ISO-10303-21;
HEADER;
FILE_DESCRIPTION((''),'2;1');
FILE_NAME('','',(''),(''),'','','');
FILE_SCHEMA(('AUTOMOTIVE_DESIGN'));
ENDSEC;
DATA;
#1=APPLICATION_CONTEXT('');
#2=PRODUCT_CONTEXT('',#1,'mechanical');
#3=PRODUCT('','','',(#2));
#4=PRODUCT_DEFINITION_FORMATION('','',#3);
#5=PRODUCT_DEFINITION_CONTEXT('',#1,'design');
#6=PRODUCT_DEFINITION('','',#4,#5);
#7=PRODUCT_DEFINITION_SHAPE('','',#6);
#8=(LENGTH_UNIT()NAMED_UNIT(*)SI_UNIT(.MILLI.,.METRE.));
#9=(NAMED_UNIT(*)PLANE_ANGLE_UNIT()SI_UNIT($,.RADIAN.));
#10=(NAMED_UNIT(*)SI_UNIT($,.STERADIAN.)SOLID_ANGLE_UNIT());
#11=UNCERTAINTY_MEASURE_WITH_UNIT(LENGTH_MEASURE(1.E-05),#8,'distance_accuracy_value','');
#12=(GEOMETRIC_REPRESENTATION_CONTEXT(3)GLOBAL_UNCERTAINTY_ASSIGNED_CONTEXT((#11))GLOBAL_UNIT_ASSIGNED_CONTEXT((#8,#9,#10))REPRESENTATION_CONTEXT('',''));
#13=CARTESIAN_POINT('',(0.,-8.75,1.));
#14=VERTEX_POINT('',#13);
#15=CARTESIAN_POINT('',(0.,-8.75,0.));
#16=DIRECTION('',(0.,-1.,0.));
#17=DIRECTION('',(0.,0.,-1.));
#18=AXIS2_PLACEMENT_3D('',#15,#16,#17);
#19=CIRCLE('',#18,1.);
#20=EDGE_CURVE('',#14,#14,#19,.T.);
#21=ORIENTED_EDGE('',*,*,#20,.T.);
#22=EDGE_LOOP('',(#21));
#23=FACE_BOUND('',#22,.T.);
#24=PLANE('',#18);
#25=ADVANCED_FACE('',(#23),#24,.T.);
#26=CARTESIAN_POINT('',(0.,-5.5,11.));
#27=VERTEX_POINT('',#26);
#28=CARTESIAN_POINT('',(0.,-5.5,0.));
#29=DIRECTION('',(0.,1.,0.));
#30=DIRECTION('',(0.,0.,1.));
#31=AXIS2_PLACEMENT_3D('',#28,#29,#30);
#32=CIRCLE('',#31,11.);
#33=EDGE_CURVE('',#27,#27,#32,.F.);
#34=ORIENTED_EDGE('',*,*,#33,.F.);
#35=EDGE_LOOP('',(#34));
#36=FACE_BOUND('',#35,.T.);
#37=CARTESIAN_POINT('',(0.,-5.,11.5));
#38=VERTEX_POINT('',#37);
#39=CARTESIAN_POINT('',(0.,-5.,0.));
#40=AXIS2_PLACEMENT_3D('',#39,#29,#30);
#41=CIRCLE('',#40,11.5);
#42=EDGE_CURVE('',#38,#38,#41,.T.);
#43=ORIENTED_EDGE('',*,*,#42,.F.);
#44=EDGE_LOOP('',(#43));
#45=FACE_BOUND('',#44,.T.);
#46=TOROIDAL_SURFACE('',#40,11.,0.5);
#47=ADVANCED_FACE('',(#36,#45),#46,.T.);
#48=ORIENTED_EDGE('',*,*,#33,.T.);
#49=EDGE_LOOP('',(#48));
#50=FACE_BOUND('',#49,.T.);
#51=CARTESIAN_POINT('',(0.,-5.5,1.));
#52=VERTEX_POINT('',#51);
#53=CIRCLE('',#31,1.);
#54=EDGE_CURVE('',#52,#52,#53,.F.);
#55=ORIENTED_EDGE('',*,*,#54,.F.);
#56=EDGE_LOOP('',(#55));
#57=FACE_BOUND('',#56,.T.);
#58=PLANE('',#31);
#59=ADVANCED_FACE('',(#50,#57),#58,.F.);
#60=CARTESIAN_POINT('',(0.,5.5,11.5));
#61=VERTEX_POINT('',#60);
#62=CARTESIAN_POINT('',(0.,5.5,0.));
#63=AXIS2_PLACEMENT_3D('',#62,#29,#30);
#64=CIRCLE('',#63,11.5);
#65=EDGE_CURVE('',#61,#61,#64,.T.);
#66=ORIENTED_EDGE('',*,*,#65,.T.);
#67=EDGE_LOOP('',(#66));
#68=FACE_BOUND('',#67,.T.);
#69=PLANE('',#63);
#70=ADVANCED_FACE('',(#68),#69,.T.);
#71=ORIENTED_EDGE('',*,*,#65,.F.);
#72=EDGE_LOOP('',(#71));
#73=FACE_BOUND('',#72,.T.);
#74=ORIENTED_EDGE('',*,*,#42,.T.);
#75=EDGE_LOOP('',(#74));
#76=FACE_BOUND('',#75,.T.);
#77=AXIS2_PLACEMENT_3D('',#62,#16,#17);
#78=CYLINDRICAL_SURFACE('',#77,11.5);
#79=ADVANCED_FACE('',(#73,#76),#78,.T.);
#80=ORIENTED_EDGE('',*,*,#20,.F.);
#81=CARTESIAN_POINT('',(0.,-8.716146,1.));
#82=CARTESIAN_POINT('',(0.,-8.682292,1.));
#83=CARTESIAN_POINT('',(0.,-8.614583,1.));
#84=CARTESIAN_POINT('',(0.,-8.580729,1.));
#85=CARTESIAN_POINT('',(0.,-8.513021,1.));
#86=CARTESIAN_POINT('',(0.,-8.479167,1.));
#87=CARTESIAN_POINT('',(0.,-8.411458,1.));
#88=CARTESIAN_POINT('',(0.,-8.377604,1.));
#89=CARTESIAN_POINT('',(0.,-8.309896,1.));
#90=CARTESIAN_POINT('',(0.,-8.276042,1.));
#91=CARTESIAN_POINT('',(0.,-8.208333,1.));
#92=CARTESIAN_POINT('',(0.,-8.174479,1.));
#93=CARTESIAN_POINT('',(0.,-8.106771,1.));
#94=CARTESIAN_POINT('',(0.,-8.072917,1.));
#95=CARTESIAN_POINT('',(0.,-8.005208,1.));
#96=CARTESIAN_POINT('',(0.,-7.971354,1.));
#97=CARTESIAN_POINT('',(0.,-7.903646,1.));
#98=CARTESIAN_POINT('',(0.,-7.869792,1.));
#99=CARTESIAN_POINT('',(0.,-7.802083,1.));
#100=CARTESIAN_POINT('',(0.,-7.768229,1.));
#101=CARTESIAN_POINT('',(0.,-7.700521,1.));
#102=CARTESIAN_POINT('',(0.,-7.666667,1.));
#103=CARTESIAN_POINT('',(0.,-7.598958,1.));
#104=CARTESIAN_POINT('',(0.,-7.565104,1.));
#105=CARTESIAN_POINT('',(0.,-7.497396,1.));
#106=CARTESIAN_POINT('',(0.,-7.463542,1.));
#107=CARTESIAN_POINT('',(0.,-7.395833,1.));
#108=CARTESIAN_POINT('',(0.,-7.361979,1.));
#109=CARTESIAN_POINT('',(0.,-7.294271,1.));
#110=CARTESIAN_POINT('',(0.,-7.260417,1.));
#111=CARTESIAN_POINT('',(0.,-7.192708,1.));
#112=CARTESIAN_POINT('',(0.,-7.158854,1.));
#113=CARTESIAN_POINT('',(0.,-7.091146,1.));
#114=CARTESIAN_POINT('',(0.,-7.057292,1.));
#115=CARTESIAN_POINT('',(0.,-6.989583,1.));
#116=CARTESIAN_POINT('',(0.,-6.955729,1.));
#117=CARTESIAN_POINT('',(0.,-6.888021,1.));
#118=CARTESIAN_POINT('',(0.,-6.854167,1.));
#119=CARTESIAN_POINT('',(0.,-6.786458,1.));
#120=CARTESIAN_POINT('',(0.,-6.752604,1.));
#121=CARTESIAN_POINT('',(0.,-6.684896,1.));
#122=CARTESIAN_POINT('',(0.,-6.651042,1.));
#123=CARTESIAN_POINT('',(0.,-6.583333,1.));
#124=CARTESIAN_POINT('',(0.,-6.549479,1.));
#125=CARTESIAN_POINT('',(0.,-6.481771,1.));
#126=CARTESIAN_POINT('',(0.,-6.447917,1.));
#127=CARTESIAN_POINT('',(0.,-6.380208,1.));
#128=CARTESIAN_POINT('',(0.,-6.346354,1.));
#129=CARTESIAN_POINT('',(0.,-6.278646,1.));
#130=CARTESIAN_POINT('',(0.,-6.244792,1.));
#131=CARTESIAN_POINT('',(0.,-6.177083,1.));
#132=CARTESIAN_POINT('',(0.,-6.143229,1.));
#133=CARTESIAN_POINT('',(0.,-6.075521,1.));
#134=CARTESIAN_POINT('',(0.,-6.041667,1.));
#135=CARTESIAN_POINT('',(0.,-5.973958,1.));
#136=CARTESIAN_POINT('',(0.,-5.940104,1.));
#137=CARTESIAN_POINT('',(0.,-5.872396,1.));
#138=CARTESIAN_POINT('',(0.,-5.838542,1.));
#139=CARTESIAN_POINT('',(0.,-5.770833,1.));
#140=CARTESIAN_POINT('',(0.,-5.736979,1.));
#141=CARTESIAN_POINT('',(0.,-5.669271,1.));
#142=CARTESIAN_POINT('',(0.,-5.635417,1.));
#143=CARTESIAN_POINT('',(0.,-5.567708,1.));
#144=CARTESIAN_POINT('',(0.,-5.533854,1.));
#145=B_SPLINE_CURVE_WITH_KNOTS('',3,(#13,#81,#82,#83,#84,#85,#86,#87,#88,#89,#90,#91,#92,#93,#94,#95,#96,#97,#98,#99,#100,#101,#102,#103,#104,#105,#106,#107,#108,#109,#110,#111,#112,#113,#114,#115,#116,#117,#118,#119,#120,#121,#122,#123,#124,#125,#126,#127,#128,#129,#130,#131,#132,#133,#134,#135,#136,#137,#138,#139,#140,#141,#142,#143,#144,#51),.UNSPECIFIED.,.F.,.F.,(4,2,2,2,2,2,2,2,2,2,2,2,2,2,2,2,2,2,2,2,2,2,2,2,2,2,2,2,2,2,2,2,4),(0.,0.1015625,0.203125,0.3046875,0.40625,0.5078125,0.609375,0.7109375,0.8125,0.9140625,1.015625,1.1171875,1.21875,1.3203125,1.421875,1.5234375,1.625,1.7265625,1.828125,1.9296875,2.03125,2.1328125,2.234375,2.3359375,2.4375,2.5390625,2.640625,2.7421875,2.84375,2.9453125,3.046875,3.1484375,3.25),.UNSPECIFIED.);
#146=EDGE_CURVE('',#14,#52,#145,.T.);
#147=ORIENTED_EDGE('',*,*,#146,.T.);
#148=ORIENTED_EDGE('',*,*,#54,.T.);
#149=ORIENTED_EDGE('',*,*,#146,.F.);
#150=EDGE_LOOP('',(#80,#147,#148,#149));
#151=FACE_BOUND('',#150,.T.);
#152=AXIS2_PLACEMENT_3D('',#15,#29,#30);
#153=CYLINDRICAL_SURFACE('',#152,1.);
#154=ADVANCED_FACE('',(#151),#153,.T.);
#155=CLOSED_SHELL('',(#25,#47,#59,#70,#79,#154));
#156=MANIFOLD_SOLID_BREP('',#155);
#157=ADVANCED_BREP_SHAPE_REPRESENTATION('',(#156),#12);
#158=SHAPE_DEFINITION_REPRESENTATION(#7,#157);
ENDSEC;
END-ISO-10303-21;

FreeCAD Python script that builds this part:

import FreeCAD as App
import Part
import Sketcher
from FreeCAD import Vector
Q = App.Units.Quantity


def edges_at(feature, points):
    """Names of the edges that pass closest to the given points."""
    edges = feature.Shape.Edges
    near = lambda p: min(range(len(edges)), key=lambda i: edges[i].distToShape(Part.Vertex(*p))[0])
    return sorted({f"Edge{near(p) + 1}" for p in points})

doc = App.newDocument("Part")
body = doc.addObject("PartDesign::Body", "Body")

sketch1 = body.newObject("Sketcher::SketchObject", "Sketch")
sketch1.AttachmentSupport = (doc.getObject("XZ_Plane"), [""])
sketch1.MapMode = "FlatFace"
sketch1.addGeometry(Part.Circle(Vector(0, 0, 0), Vector(0, 0, 1), 12), False)
sketch1.addConstraint([
    Sketcher.Constraint("Coincident", 0, 3, -1, 1),
    Sketcher.Constraint("Diameter", 0, Q("23 mm")),
])
pad1 = body.newObject("PartDesign::Pad", "Pad")
pad1.Profile = sketch1
pad1.Length = 11
pad1.Midplane = True

sketch2 = body.newObject("Sketcher::SketchObject", "Sketch001")
sketch2.AttachmentSupport = (doc.getObject("XZ_Plane"), [""])
sketch2.MapMode = "FlatFace"
sketch2.AttachmentOffset = App.Placement(Vector(0, 0, 5.5), App.Rotation())
sketch2.addGeometry(Part.Circle(Vector(0, 0, 0), Vector(0, 0, 1), 1), False)
sketch2.addConstraint([
    Sketcher.Constraint("Coincident", 0, 3, -1, 1),
    Sketcher.Constraint("Diameter", 0, Q("2 mm")),
])
pad2 = body.newObject("PartDesign::Pad", "Pad001")
pad2.Profile = sketch2
pad2.Length = 6.5
pad2.Midplane = True
doc.recompute()

fillet = body.newObject("PartDesign::Fillet", "Fillet")
fillet.Base = (pad2, edges_at(pad2, [(0, -5.5, -11.5)]))
fillet.Radius = 0.5

doc.recompute()
